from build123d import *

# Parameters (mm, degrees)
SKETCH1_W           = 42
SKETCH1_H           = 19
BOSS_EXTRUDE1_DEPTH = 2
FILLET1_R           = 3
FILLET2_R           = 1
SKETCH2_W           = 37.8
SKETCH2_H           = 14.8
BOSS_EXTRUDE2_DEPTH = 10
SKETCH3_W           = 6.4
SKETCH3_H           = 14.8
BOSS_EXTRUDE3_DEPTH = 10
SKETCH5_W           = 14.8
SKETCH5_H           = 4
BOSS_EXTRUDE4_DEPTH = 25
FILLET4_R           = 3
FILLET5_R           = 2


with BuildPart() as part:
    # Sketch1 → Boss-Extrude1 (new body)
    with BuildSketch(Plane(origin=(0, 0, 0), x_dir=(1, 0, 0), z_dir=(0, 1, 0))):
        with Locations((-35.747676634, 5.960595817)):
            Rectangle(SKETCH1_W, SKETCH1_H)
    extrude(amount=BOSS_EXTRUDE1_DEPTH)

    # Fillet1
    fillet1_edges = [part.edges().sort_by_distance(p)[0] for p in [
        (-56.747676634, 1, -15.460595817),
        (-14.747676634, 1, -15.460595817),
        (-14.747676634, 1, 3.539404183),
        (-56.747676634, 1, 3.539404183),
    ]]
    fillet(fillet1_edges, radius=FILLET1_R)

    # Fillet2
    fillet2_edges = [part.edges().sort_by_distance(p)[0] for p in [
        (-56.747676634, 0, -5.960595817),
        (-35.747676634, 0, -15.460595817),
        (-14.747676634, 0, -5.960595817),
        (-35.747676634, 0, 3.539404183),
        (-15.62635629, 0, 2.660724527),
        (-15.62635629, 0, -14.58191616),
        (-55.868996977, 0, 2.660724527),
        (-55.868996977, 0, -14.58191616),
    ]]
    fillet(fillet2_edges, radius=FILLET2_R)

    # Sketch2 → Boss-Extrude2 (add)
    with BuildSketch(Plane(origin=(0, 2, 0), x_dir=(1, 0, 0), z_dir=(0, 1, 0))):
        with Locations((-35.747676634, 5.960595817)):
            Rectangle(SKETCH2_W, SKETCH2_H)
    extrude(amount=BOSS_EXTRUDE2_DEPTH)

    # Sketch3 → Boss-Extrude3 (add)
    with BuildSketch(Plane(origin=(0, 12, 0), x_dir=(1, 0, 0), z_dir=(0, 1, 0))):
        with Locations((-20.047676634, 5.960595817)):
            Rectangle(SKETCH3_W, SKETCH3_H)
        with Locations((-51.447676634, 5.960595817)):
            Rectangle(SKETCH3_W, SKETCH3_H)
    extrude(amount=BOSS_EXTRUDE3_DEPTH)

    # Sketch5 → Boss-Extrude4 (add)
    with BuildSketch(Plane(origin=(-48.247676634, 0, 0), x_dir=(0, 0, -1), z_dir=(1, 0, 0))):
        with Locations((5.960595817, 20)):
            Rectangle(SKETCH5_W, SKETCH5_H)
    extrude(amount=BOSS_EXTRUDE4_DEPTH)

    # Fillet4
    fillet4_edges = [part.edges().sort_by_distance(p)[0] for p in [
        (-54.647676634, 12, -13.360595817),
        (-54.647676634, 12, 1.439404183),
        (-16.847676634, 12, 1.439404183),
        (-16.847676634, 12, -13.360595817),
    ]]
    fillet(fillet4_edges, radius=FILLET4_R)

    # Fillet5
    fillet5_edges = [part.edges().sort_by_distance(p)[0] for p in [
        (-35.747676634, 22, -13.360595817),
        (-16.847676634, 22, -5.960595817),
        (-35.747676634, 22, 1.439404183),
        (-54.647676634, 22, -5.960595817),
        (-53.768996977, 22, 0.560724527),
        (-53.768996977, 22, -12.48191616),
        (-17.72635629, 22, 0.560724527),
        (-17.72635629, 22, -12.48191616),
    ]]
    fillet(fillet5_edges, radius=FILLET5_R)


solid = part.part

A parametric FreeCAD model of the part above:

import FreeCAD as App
import Part
import Sketcher


def edges_at(feature, points):
    """Names of the edges that pass closest to the given points."""
    edges = feature.Shape.Edges
    near = lambda p: min(range(len(edges)), key=lambda i: edges[i].distToShape(Part.Vertex(*p))[0])
    return sorted({f"Edge{near(p) + 1}" for p in points})


def add_polygon(sketch, points):
    """Adds a closed chain of lines whose ends are joined by coincident constraints."""
    first, n = sketch.GeometryCount, len(points)
    for a, b in zip(points, points[1:] + points[:1]):
        sketch.addGeometry(Part.LineSegment(App.Vector(*a, 0), App.Vector(*b, 0)), False)
    for i in range(n):
        sketch.addConstraint(Sketcher.Constraint("Coincident", first + i, 2, first + (i + 1) % n, 1))

doc = App.newDocument("Part")
body = doc.addObject("PartDesign::Body", "Body")

# Sketch on XZ plane
sketch1 = body.newObject("Sketcher::SketchObject", "Sketch")
sketch1.AttachmentSupport = (doc.getObject("XZ_Plane"), [""])
sketch1.MapMode = "FlatFace"
add_polygon(sketch1, [(-57, -15), (-57, 4), (-15, 4), (-15, -15)])  # lines 0-3
sketch1.addConstraint(Sketcher.Constraint("Vertical", 0))
sketch1.addConstraint(Sketcher.Constraint("Horizontal", 1))
sketch1.addConstraint(Sketcher.Constraint("Vertical", 2))
sketch1.addConstraint(Sketcher.Constraint("Horizontal", 3))
sketch1.addConstraint(Sketcher.Constraint("DistanceX", 1, 1, 1, 2, 42.0))
sketch1.addConstraint(Sketcher.Constraint("DistanceY", 0, 1, 0, 2, 19.0))
sketch1.addConstraint(Sketcher.Constraint("DistanceX", 0, 2, -1, 1, 56.747677))
sketch1.addConstraint(Sketcher.Constraint("DistanceY", -1, 1, 0, 2, 3.539404))
pad1 = body.newObject("PartDesign::Pad", "Pad")
pad1.Profile = sketch1
pad1.Length = 2
pad1.Reversed = True
doc.recompute()

fillet = body.newObject("PartDesign::Fillet", "Fillet")
fillet.Base = (pad1, edges_at(pad1, [
    (-56.748, 1, -15.461),
    (-14.748, 1, -15.461),
    (-14.748, 1, 3.539),
    (-56.748, 1, 3.539),
]))
fillet.Radius = 3
doc.recompute()

fillet2 = body.newObject("PartDesign::Fillet", "Fillet001")
fillet2.Base = (fillet, edges_at(fillet, [
    (-56.748, 0, -5.961),
    (-35.748, 0, -15.461),
    (-14.748, 0, -5.961),
    (-35.748, 0, 3.539),
    (-15.626, 0, 2.661),
    (-15.626, 0, -14.582),
    (-55.869, 0, 2.661),
    (-55.869, 0, -14.582),
]))
fillet2.Radius = 1

# Sketch on XZ plane
sketch2 = body.newObject("Sketcher::SketchObject", "Sketch001")
sketch2.AttachmentSupport = (doc.getObject("XZ_Plane"), [""])
sketch2.MapMode = "FlatFace"
sketch2.AttachmentOffset = App.Placement(App.Vector(0, 0, -2), App.Rotation())
add_polygon(sketch2, [(-55, -13), (-55, 1), (-17, 1), (-17, -13)])  # lines 0-3
sketch2.addConstraint(Sketcher.Constraint("Vertical", 0))
sketch2.addConstraint(Sketcher.Constraint("Horizontal", 1))
sketch2.addConstraint(Sketcher.Constraint("Vertical", 2))
sketch2.addConstraint(Sketcher.Constraint("Horizontal", 3))
sketch2.addConstraint(Sketcher.Constraint("DistanceX", 1, 1, 1, 2, 37.8))
sketch2.addConstraint(Sketcher.Constraint("DistanceY", 0, 1, 0, 2, 14.8))
sketch2.addConstraint(Sketcher.Constraint("DistanceX", 0, 2, -1, 1, 54.647677))
sketch2.addConstraint(Sketcher.Constraint("DistanceY", -1, 1, 0, 2, 1.439404))
pad2 = body.newObject("PartDesign::Pad", "Pad001")
pad2.Profile = sketch2
pad2.Length = 10
pad2.Reversed = True

# Sketch on XZ plane
sketch3 = body.newObject("Sketcher::SketchObject", "Sketch002")
sketch3.AttachmentSupport = (doc.getObject("XZ_Plane"), [""])
sketch3.MapMode = "FlatFace"
sketch3.AttachmentOffset = App.Placement(App.Vector(0, 0, -12), App.Rotation())
add_polygon(sketch3, [(-23, -13), (-23, 1), (-17, 1), (-17, -13)])  # lines 0-3
add_polygon(sketch3, [(-55, -13), (-55, 1), (-48, 1), (-48, -13)])  # lines 4-7
sketch3.addConstraint(Sketcher.Constraint("Vertical", 0))
sketch3.addConstraint(Sketcher.Constraint("Horizontal", 1))
sketch3.addConstraint(Sketcher.Constraint("Vertical", 2))
sketch3.addConstraint(Sketcher.Constraint("Horizontal", 3))
sketch3.addConstraint(Sketcher.Constraint("Vertical", 4))
sketch3.addConstraint(Sketcher.Constraint("Horizontal", 5))
sketch3.addConstraint(Sketcher.Constraint("Vertical", 6))
sketch3.addConstraint(Sketcher.Constraint("Horizontal", 7))
sketch3.addConstraint(Sketcher.Constraint("Horizontal", 1, 2, 4, 2))
sketch3.addConstraint(Sketcher.Constraint("Horizontal", 3, 2, 6, 2))
sketch3.addConstraint(Sketcher.Constraint("Equal", 3, 5))
sketch3.addConstraint(Sketcher.Constraint("DistanceX", 1, 1, 1, 2, 6.4))
sketch3.addConstraint(Sketcher.Constraint("DistanceY", 0, 1, 0, 2, 14.8))
sketch3.addConstraint(Sketcher.Constraint("DistanceX", 5, 2, 0, 2, 25.0))
sketch3.addConstraint(Sketcher.Constraint("DistanceX", 0, 2, -1, 1, 23.247677))
sketch3.addConstraint(Sketcher.Constraint("DistanceY", -1, 1, 0, 2, 1.439404))
pad3 = body.newObject("PartDesign::Pad", "Pad002")
pad3.Profile = sketch3
pad3.Length = 10
pad3.Reversed = True

# Sketch on YZ plane
sketch4 = body.newObject("Sketcher::SketchObject", "Sketch003")
sketch4.AttachmentSupport = (doc.getObject("YZ_Plane"), [""])
sketch4.MapMode = "FlatFace"
sketch4.AttachmentOffset = App.Placement(App.Vector(0, 0, -48.247677), App.Rotation())
add_polygon(sketch4, [(22, 1.4), (18, 1.4), (18, -13.4), (22, -13.4)])  # lines 0-3
sketch4.addConstraint(Sketcher.Constraint("Horizontal", 0))
sketch4.addConstraint(Sketcher.Constraint("Vertical", 1))
sketch4.addConstraint(Sketcher.Constraint("Horizontal", 2))
sketch4.addConstraint(Sketcher.Constraint("Vertical", 3))
sketch4.addConstraint(Sketcher.Constraint("DistanceX", 0, 2, 0, 1, 4.0))
sketch4.addConstraint(Sketcher.Constraint("DistanceY", 1, 2, 1, 1, 14.8))
sketch4.addConstraint(Sketcher.Constraint("DistanceX", -1, 1, 0, 2, 18.0))
sketch4.addConstraint(Sketcher.Constraint("DistanceY", -1, 1, 0, 2, 1.439404))
pad4 = body.newObject("PartDesign::Pad", "Pad003")
pad4.Profile = sketch4
pad4.Length = 25
doc.recompute()

fillet3 = body.newObject("PartDesign::Fillet", "Fillet002")
fillet3.Base = (pad4, edges_at(pad4, [
    (-54.648, 12, -13.361),
    (-54.648, 12, 1.439),
    (-16.848, 12, 1.439),
    (-16.848, 12, -13.361),
]))
fillet3.Radius = 3
doc.recompute()

fillet4 = body.newObject("PartDesign::Fillet", "Fillet003")
fillet4.Base = (fillet3, edges_at(fillet3, [
    (-35.748, 22, -13.361),
    (-16.848, 22, -5.961),
    (-35.748, 22, 1.439),
    (-54.648, 22, -5.961),
    (-53.769, 22, 0.561),
    (-53.769, 22, -12.482),
    (-17.726, 22, 0.561),
    (-17.726, 22, -12.482),
]))
fillet4.Radius = 2

doc.recompute()
